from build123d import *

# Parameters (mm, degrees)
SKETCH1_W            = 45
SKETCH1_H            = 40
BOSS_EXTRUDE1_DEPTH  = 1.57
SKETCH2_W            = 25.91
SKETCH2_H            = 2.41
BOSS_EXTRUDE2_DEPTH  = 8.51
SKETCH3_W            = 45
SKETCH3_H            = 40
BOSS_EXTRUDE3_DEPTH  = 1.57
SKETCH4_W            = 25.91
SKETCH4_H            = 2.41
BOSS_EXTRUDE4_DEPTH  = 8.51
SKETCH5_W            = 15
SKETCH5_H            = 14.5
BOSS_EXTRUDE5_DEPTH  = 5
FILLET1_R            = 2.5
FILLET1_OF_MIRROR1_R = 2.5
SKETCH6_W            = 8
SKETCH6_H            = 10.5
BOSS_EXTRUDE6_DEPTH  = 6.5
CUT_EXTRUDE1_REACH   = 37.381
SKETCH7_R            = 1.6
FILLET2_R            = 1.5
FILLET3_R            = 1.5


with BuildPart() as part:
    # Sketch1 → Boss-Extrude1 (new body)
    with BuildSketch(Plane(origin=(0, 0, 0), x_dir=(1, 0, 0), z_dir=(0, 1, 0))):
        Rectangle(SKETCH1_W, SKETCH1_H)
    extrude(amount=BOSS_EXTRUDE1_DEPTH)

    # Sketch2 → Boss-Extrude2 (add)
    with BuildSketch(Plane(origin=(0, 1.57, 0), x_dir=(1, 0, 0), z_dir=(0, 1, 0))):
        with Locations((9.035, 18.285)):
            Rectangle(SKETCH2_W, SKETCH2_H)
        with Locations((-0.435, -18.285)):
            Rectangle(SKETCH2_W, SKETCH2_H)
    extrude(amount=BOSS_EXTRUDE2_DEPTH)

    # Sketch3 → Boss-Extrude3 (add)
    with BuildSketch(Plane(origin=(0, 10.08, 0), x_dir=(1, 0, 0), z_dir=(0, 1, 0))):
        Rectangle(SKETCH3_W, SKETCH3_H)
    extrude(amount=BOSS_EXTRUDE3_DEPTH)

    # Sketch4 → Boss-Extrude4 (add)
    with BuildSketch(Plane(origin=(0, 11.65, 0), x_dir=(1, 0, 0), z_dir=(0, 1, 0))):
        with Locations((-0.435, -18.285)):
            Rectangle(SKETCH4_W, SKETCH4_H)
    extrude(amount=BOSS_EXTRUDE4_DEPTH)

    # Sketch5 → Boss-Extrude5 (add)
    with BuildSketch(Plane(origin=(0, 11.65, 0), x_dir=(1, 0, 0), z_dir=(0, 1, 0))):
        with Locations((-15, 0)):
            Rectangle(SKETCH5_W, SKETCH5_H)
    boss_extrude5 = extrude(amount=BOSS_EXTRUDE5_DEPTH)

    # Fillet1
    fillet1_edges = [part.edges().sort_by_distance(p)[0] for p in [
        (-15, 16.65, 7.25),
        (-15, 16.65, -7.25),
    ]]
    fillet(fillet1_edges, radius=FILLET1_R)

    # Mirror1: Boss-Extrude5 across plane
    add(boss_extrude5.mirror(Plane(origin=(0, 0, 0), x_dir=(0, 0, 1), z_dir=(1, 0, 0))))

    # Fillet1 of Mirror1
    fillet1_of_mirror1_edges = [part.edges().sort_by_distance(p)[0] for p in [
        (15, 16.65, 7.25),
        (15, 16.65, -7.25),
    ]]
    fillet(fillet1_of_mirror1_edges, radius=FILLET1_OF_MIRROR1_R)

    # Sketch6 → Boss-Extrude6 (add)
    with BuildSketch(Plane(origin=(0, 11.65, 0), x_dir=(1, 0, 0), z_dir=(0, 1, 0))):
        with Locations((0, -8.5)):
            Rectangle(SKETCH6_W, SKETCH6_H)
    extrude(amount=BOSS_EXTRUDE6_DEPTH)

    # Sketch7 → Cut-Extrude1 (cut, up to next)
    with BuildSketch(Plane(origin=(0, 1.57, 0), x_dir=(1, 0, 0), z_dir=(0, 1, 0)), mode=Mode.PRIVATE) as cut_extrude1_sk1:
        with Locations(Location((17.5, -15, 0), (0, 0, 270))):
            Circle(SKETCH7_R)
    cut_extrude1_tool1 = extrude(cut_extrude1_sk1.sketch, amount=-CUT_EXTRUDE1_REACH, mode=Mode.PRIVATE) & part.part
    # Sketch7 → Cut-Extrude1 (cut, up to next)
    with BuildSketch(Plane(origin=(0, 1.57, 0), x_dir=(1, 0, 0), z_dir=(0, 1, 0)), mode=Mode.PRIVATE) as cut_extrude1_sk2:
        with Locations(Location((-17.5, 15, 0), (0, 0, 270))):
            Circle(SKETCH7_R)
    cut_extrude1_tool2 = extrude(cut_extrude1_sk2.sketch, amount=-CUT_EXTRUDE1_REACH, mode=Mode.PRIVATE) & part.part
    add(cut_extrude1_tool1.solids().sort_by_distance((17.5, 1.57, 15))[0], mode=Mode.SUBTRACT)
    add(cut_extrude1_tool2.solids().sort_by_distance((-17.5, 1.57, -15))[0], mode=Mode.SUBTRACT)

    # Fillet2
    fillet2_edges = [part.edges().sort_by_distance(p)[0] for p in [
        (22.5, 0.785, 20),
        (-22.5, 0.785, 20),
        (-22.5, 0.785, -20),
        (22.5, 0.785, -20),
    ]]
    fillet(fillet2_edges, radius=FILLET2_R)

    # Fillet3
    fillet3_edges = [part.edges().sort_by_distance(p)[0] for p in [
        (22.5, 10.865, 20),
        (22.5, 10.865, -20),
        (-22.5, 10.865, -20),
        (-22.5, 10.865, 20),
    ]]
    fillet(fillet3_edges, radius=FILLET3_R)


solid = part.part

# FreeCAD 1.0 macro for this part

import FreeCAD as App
import Part
import Sketcher
Q = App.Units.Quantity


def edges_at(feature, points):
    """Names of the edges that pass closest to the given points."""
    edges = feature.Shape.Edges
    near = lambda p: min(range(len(edges)), key=lambda i: edges[i].distToShape(Part.Vertex(*p))[0])
    return sorted({f"Edge{near(p) + 1}" for p in points})

doc = App.newDocument("Part")
body = doc.addObject("PartDesign::Body", "Body")

# Sketch on XZ plane
sketch1 = doc.addObject("Sketcher::SketchObject", "Sketch")
body.addObject(sketch1)
sketch1.AttachmentSupport = (doc.XZ_Plane, [""])
sketch1.MapMode = "FlatFace"
sketch1.addGeometry(Part.LineSegment(App.Vector(-22, -20, 0), App.Vector(-22, 20, 0)), False)
sketch1.addGeometry(Part.LineSegment(App.Vector(-22, 20, 0), App.Vector(22, 20, 0)), False)
sketch1.addGeometry(Part.LineSegment(App.Vector(22, 20, 0), App.Vector(22, -20, 0)), False)
sketch1.addGeometry(Part.LineSegment(App.Vector(22, -20, 0), App.Vector(-22, -20, 0)), False)
sketch1.addConstraint(Sketcher.Constraint("Coincident", 0, 2, 1, 1))
sketch1.addConstraint(Sketcher.Constraint("Coincident", 1, 2, 2, 1))
sketch1.addConstraint(Sketcher.Constraint("Coincident", 2, 2, 3, 1))
sketch1.addConstraint(Sketcher.Constraint("Coincident", 3, 2, 0, 1))
sketch1.addConstraint(Sketcher.Constraint("Vertical", 0))
sketch1.addConstraint(Sketcher.Constraint("Horizontal", 1))
sketch1.addConstraint(Sketcher.Constraint("Vertical", 2))
sketch1.addConstraint(Sketcher.Constraint("Horizontal", 3))
sketch1.addConstraint(Sketcher.Constraint("Symmetric", 0, 2, 2, 2, -1, 1))
sketch1.addConstraint(Sketcher.Constraint("DistanceX", 1, 1, 1, 2, Q("45 mm")))
sketch1.addConstraint(Sketcher.Constraint("DistanceY", 0, 1, 0, 2, Q("40 mm")))
pad1 = doc.addObject("PartDesign::Pad", "Pad")
body.addObject(pad1)
pad1.Profile = sketch1
pad1.Length = 1.57
pad1.Reversed = True

# Sketch on XZ plane
sketch2 = doc.addObject("Sketcher::SketchObject", "Sketch001")
body.addObject(sketch2)
sketch2.AttachmentSupport = (doc.XZ_Plane, [""])
sketch2.MapMode = "FlatFace"
sketch2.AttachmentOffset = App.Placement(App.Vector(0, 0, -1.57), App.Rotation())
sketch2.addGeometry(Part.LineSegment(App.Vector(-3.9, -19.5, 0), App.Vector(-3.9, -17.1, 0)), False)
sketch2.addGeometry(Part.LineSegment(App.Vector(-3.9, -17.1, 0), App.Vector(22, -17.1, 0)), False)
sketch2.addGeometry(Part.LineSegment(App.Vector(22, -17.1, 0), App.Vector(22, -19.5, 0)), False)
sketch2.addGeometry(Part.LineSegment(App.Vector(22, -19.5, 0), App.Vector(-3.9, -19.5, 0)), False)
sketch2.addGeometry(Part.LineSegment(App.Vector(-13.4, 17.1, 0), App.Vector(-13.4, 19.5, 0)), False)
sketch2.addGeometry(Part.LineSegment(App.Vector(-13.4, 19.5, 0), App.Vector(12.5, 19.5, 0)), False)
sketch2.addGeometry(Part.LineSegment(App.Vector(12.5, 19.5, 0), App.Vector(12.5, 17.1, 0)), False)
sketch2.addGeometry(Part.LineSegment(App.Vector(12.5, 17.1, 0), App.Vector(-13.4, 17.1, 0)), False)
sketch2.addConstraint(Sketcher.Constraint("Coincident", 0, 2, 1, 1))
sketch2.addConstraint(Sketcher.Constraint("Coincident", 1, 2, 2, 1))
sketch2.addConstraint(Sketcher.Constraint("Coincident", 2, 2, 3, 1))
sketch2.addConstraint(Sketcher.Constraint("Coincident", 3, 2, 0, 1))
sketch2.addConstraint(Sketcher.Constraint("Coincident", 4, 2, 5, 1))
sketch2.addConstraint(Sketcher.Constraint("Coincident", 5, 2, 6, 1))
sketch2.addConstraint(Sketcher.Constraint("Coincident", 6, 2, 7, 1))
sketch2.addConstraint(Sketcher.Constraint("Coincident", 7, 2, 4, 1))
sketch2.addConstraint(Sketcher.Constraint("Vertical", 0))
sketch2.addConstraint(Sketcher.Constraint("Horizontal", 1))
sketch2.addConstraint(Sketcher.Constraint("Vertical", 2))
sketch2.addConstraint(Sketcher.Constraint("Horizontal", 3))
sketch2.addConstraint(Sketcher.Constraint("Vertical", 4))
sketch2.addConstraint(Sketcher.Constraint("Horizontal", 5))
sketch2.addConstraint(Sketcher.Constraint("Vertical", 6))
sketch2.addConstraint(Sketcher.Constraint("Horizontal", 7))
sketch2.addConstraint(Sketcher.Constraint("Equal", 3, 5))
sketch2.addConstraint(Sketcher.Constraint("Equal", 2, 4))
sketch2.addConstraint(Sketcher.Constraint("DistanceX", 1, 1, 1, 2, Q("25.91 mm")))
sketch2.addConstraint(Sketcher.Constraint("DistanceY", 0, 1, 0, 2, Q("2.41 mm")))
sketch2.addConstraint(Sketcher.Constraint("DistanceX", 0, 2, -1, 1, Q("3.92 mm")))
sketch2.addConstraint(Sketcher.Constraint("DistanceY", 0, 2, -1, 1, Q("17.08 mm")))
sketch2.addConstraint(Sketcher.Constraint("DistanceX", 4, 2, -1, 1, Q("13.39 mm")))
sketch2.addConstraint(Sketcher.Constraint("DistanceY", -1, 1, 4, 2, Q("19.49 mm")))
pad2 = doc.addObject("PartDesign::Pad", "Pad001")
body.addObject(pad2)
pad2.Profile = sketch2
pad2.Length = 8.51
pad2.Reversed = True

# Sketch on XZ plane
sketch3 = doc.addObject("Sketcher::SketchObject", "Sketch002")
body.addObject(sketch3)
sketch3.AttachmentSupport = (doc.XZ_Plane, [""])
sketch3.MapMode = "FlatFace"
sketch3.AttachmentOffset = App.Placement(App.Vector(0, 0, -10.08), App.Rotation())
sketch3.addGeometry(Part.LineSegment(App.Vector(-22, -20, 0), App.Vector(-22, 20, 0)), False)
sketch3.addGeometry(Part.LineSegment(App.Vector(-22, 20, 0), App.Vector(22, 20, 0)), False)
sketch3.addGeometry(Part.LineSegment(App.Vector(22, 20, 0), App.Vector(22, -20, 0)), False)
sketch3.addGeometry(Part.LineSegment(App.Vector(22, -20, 0), App.Vector(-22, -20, 0)), False)
sketch3.addConstraint(Sketcher.Constraint("Coincident", 0, 2, 1, 1))
sketch3.addConstraint(Sketcher.Constraint("Coincident", 1, 2, 2, 1))
sketch3.addConstraint(Sketcher.Constraint("Coincident", 2, 2, 3, 1))
sketch3.addConstraint(Sketcher.Constraint("Coincident", 3, 2, 0, 1))
sketch3.addConstraint(Sketcher.Constraint("Vertical", 0))
sketch3.addConstraint(Sketcher.Constraint("Horizontal", 1))
sketch3.addConstraint(Sketcher.Constraint("Vertical", 2))
sketch3.addConstraint(Sketcher.Constraint("Horizontal", 3))
sketch3.addConstraint(Sketcher.Constraint("Symmetric", 0, 2, 2, 2, -1, 1))
sketch3.addConstraint(Sketcher.Constraint("DistanceX", 1, 1, 1, 2, Q("45 mm")))
sketch3.addConstraint(Sketcher.Constraint("DistanceY", 0, 1, 0, 2, Q("40 mm")))
pad3 = doc.addObject("PartDesign::Pad", "Pad002")
body.addObject(pad3)
pad3.Profile = sketch3
pad3.Length = 1.57
pad3.Reversed = True

# Sketch on XZ plane
sketch4 = doc.addObject("Sketcher::SketchObject", "Sketch003")
body.addObject(sketch4)
sketch4.AttachmentSupport = (doc.XZ_Plane, [""])
sketch4.MapMode = "FlatFace"
sketch4.AttachmentOffset = App.Placement(App.Vector(0, 0, -11.65), App.Rotation())
sketch4.addGeometry(Part.LineSegment(App.Vector(-13.4, 17.1, 0), App.Vector(-13.4, 19.5, 0)), False)
sketch4.addGeometry(Part.LineSegment(App.Vector(-13.4, 19.5, 0), App.Vector(12.5, 19.5, 0)), False)
sketch4.addGeometry(Part.LineSegment(App.Vector(12.5, 19.5, 0), App.Vector(12.5, 17.1, 0)), False)
sketch4.addGeometry(Part.LineSegment(App.Vector(12.5, 17.1, 0), App.Vector(-13.4, 17.1, 0)), False)
sketch4.addConstraint(Sketcher.Constraint("Coincident", 0, 2, 1, 1))
sketch4.addConstraint(Sketcher.Constraint("Coincident", 1, 2, 2, 1))
sketch4.addConstraint(Sketcher.Constraint("Coincident", 2, 2, 3, 1))
sketch4.addConstraint(Sketcher.Constraint("Coincident", 3, 2, 0, 1))
sketch4.addConstraint(Sketcher.Constraint("Vertical", 0))
sketch4.addConstraint(Sketcher.Constraint("Horizontal", 1))
sketch4.addConstraint(Sketcher.Constraint("Vertical", 2))
sketch4.addConstraint(Sketcher.Constraint("Horizontal", 3))
sketch4.addConstraint(Sketcher.Constraint("DistanceX", 1, 1, 1, 2, Q("25.91 mm")))
sketch4.addConstraint(Sketcher.Constraint("DistanceY", 0, 1, 0, 2, Q("2.41 mm")))
sketch4.addConstraint(Sketcher.Constraint("DistanceX", 0, 2, -1, 1, Q("13.39 mm")))
sketch4.addConstraint(Sketcher.Constraint("DistanceY", -1, 1, 0, 2, Q("19.49 mm")))
pad4 = doc.addObject("PartDesign::Pad", "Pad003")
body.addObject(pad4)
pad4.Profile = sketch4
pad4.Length = 8.51
pad4.Reversed = True

# Sketch on XZ plane
sketch5 = doc.addObject("Sketcher::SketchObject", "Sketch004")
body.addObject(sketch5)
sketch5.AttachmentSupport = (doc.XZ_Plane, [""])
sketch5.MapMode = "FlatFace"
sketch5.AttachmentOffset = App.Placement(App.Vector(0, 0, -11.65), App.Rotation())
sketch5.addGeometry(Part.LineSegment(App.Vector(-22, -7, 0), App.Vector(-22, 7, 0)), False)
sketch5.addGeometry(Part.LineSegment(App.Vector(-22, 7, 0), App.Vector(-8, 7, 0)), False)
sketch5.addGeometry(Part.LineSegment(App.Vector(-8, 7, 0), App.Vector(-8, -7, 0)), False)
sketch5.addGeometry(Part.LineSegment(App.Vector(-8, -7, 0), App.Vector(-22, -7, 0)), False)
sketch5.addConstraint(Sketcher.Constraint("Coincident", 0, 2, 1, 1))
sketch5.addConstraint(Sketcher.Constraint("Coincident", 1, 2, 2, 1))
sketch5.addConstraint(Sketcher.Constraint("Coincident", 2, 2, 3, 1))
sketch5.addConstraint(Sketcher.Constraint("Coincident", 3, 2, 0, 1))
sketch5.addConstraint(Sketcher.Constraint("Vertical", 0))
sketch5.addConstraint(Sketcher.Constraint("Horizontal", 1))
sketch5.addConstraint(Sketcher.Constraint("Vertical", 2))
sketch5.addConstraint(Sketcher.Constraint("Horizontal", 3))
sketch5.addConstraint(Sketcher.Constraint("DistanceX", 1, 1, 1, 2, Q("15 mm")))
sketch5.addConstraint(Sketcher.Constraint("DistanceY", 0, 1, 0, 2, Q("14.5 mm")))
sketch5.addConstraint(Sketcher.Constraint("DistanceX", 0, 2, -1, 1, Q("22.5 mm")))
sketch5.addConstraint(Sketcher.Constraint("DistanceY", -1, 1, 0, 2, Q("7.25 mm")))
pad5 = doc.addObject("PartDesign::Pad", "Pad004")
body.addObject(pad5)
pad5.Profile = sketch5
pad5.Length = 5
pad5.Reversed = True
doc.recompute()

fillet = doc.addObject("PartDesign::Fillet", "Fillet")
body.addObject(fillet)
fillet.Base = (pad5, edges_at(pad5, [(-15, 16.65, 7.25), (-15, 16.65, -7.25)]))
fillet.Radius = 2.5
doc.recompute()

mirrored = doc.addObject("PartDesign::Mirrored", "Mirrored")
body.addObject(mirrored)
mirrored.Originals = [pad5]
mirrored.MirrorPlane = (doc.YZ_Plane, [""])
body.Tip = mirrored
doc.recompute()

fillet2 = doc.addObject("PartDesign::Fillet", "Fillet001")
body.addObject(fillet2)
fillet2.Base = (mirrored, edges_at(mirrored, [(15, 16.65, 7.25), (15, 16.65, -7.25)]))
fillet2.Radius = 2.5

# Sketch on XZ plane
sketch6 = doc.addObject("Sketcher::SketchObject", "Sketch005")
body.addObject(sketch6)
sketch6.AttachmentSupport = (doc.XZ_Plane, [""])
sketch6.MapMode = "FlatFace"
sketch6.AttachmentOffset = App.Placement(App.Vector(0, 0, -11.65), App.Rotation())
sketch6.addGeometry(Part.LineSegment(App.Vector(-4, 3, 0), App.Vector(-4, 14, 0)), False)
sketch6.addGeometry(Part.LineSegment(App.Vector(-4, 14, 0), App.Vector(4, 14, 0)), False)
sketch6.addGeometry(Part.LineSegment(App.Vector(4, 14, 0), App.Vector(4, 3, 0)), False)
sketch6.addGeometry(Part.LineSegment(App.Vector(4, 3, 0), App.Vector(-4, 3, 0)), False)
sketch6.addConstraint(Sketcher.Constraint("Coincident", 0, 2, 1, 1))
sketch6.addConstraint(Sketcher.Constraint("Coincident", 1, 2, 2, 1))
sketch6.addConstraint(Sketcher.Constraint("Coincident", 2, 2, 3, 1))
sketch6.addConstraint(Sketcher.Constraint("Coincident", 3, 2, 0, 1))
sketch6.addConstraint(Sketcher.Constraint("Vertical", 0))
sketch6.addConstraint(Sketcher.Constraint("Horizontal", 1))
sketch6.addConstraint(Sketcher.Constraint("Vertical", 2))
sketch6.addConstraint(Sketcher.Constraint("Horizontal", 3))
sketch6.addConstraint(Sketcher.Constraint("DistanceX", 1, 1, 1, 2, Q("8 mm")))
sketch6.addConstraint(Sketcher.Constraint("DistanceY", 0, 1, 0, 2, Q("10.5 mm")))
sketch6.addConstraint(Sketcher.Constraint("DistanceX", 0, 2, -1, 1, Q("4 mm")))
sketch6.addConstraint(Sketcher.Constraint("DistanceY", -1, 1, 0, 2, Q("13.75 mm")))
pad6 = doc.addObject("PartDesign::Pad", "Pad005")
body.addObject(pad6)
pad6.Profile = sketch6
pad6.Length = 6.5
pad6.Reversed = True

# Sketch on XZ plane
sketch7 = doc.addObject("Sketcher::SketchObject", "Sketch006")
body.addObject(sketch7)
sketch7.AttachmentSupport = (doc.XZ_Plane, [""])
sketch7.MapMode = "FlatFace"
sketch7.AttachmentOffset = App.Placement(App.Vector(0, 0, -1.57), App.Rotation())
sketch7.addGeometry(Part.Circle(App.Vector(17.5, 15, 0), App.Vector(0, 0, 1), 1.6), False)
sketch7.addConstraint(Sketcher.Constraint("Diameter", 0, Q("3.2 mm")))
sketch7.addConstraint(Sketcher.Constraint("DistanceY", -1, 1, 0, 3, Q("15 mm")))
sketch7.addConstraint(Sketcher.Constraint("DistanceX", -1, 1, 0, 3, Q("17.5 mm")))
pocket1 = doc.addObject("PartDesign::Pocket", "Pocket")
body.addObject(pocket1)
pocket1.Profile = sketch7
pocket1.Type = "UpToFirst"
pocket1.Reversed = True

# Sketch on XZ plane
sketch8 = doc.addObject("Sketcher::SketchObject", "Sketch007")
body.addObject(sketch8)
sketch8.AttachmentSupport = (doc.XZ_Plane, [""])
sketch8.MapMode = "FlatFace"
sketch8.AttachmentOffset = App.Placement(App.Vector(0, 0, -1.57), App.Rotation())
sketch8.addGeometry(Part.Circle(App.Vector(-17.5, -15, 0), App.Vector(0, 0, 1), 1.6), False)
sketch8.addConstraint(Sketcher.Constraint("Diameter", 0, Q("3.2 mm")))
sketch8.addConstraint(Sketcher.Constraint("DistanceY", 0, 3, -1, 1, Q("15 mm")))
sketch8.addConstraint(Sketcher.Constraint("DistanceX", 0, 3, -1, 1, Q("17.5 mm")))
pocket2 = doc.addObject("PartDesign::Pocket", "Pocket001")
body.addObject(pocket2)
pocket2.Profile = sketch8
pocket2.Type = "UpToFirst"
pocket2.Reversed = True
doc.recompute()

fillet3 = doc.addObject("PartDesign::Fillet", "Fillet002")
body.addObject(fillet3)
fillet3.Base = (pocket2, edges_at(pocket2, [
    (22.5, 0.785, 20),
    (-22.5, 0.785, 20),
    (-22.5, 0.785, -20),
    (22.5, 0.785, -20),
]))
fillet3.Radius = 1.5
doc.recompute()

fillet4 = doc.addObject("PartDesign::Fillet", "Fillet003")
body.addObject(fillet4)
fillet4.Base = (fillet3, edges_at(fillet3, [
    (22.5, 10.865, 20),
    (22.5, 10.865, -20),
    (-22.5, 10.865, -20),
    (-22.5, 10.865, 20),
]))
fillet4.Radius = 1.5

doc.recompute()
